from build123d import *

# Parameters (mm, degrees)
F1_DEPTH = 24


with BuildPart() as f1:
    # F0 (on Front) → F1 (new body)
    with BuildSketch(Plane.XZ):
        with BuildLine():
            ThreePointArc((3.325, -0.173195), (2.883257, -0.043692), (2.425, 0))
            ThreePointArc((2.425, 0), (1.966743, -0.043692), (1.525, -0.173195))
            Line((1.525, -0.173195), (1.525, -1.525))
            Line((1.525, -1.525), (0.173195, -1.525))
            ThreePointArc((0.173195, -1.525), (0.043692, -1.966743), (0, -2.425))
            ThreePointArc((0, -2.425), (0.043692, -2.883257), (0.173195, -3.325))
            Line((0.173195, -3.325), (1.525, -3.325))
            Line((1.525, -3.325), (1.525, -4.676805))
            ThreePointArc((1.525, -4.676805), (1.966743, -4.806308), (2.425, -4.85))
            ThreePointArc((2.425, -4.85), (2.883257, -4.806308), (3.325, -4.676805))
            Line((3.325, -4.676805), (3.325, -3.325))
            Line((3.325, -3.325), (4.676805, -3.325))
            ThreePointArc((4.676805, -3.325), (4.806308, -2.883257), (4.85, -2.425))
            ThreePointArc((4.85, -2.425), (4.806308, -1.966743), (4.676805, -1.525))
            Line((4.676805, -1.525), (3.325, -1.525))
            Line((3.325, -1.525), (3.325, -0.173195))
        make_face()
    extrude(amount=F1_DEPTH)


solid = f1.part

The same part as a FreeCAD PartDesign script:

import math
import FreeCAD as App
import Part
import Sketcher
from FreeCAD import Vector
Q = App.Units.Quantity

doc = App.newDocument("Part")
params = doc.addObject("Spreadsheet::Sheet", "Params")
for row, (alias, value) in enumerate([
    ("pad1_length", "24 mm"),
], start=1):
    params.set(f"A{row}", alias)
    params.set(f"B{row}", "=" + value)
    params.setAlias(f"B{row}", alias)

body = doc.addObject("PartDesign::Body", "Body")

# Sketch on XZ plane
sketch1 = body.newObject("Sketcher::SketchObject", "Sketch")
sketch1.AttachmentSupport = (doc.getObject("XZ_Plane"), [""])
sketch1.MapMode = "FlatFace"
sketch1.addGeometry([
    Part.ArcOfCircle(Part.Circle(Vector(2.425004, -2.424979, 0), Vector(0, 0, 1), 2.424979), math.radians(68.214342), math.radians(90.000106)),  # 0
    Part.ArcOfCircle(Part.Circle(Vector(2.424996, -2.424979, 0), Vector(0, 0, 1), 2.424979), math.radians(89.999894), math.radians(111.785658)),  # 1
    Part.LineSegment(Vector(1.525, -0.173195, 0), Vector(1.525, -1.525, 0)),  # 2
    Part.LineSegment(Vector(1.525, -1.525, 0), Vector(0.173195, -1.525, 0)),  # 3
    Part.ArcOfCircle(Part.Circle(Vector(2.424979, -2.424996, 0), Vector(0, 0, 1), 2.424979), math.radians(158.214342), math.radians(180.000106)),  # 4
    Part.ArcOfCircle(Part.Circle(Vector(2.424979, -2.425004, 0), Vector(0, 0, 1), 2.424979), math.radians(179.999894), math.radians(201.785658)),  # 5
    Part.LineSegment(Vector(0.173195, -3.325, 0), Vector(1.525, -3.325, 0)),  # 6
    Part.LineSegment(Vector(1.525, -3.325, 0), Vector(1.525, -4.676805, 0)),  # 7
    Part.ArcOfCircle(Part.Circle(Vector(2.424996, -2.425021, 0), Vector(0, 0, 1), 2.424979), math.radians(-111.785658), math.radians(-89.999894)),  # 8
    Part.ArcOfCircle(Part.Circle(Vector(2.425004, -2.425021, 0), Vector(0, 0, 1), 2.424979), math.radians(-90.000106), math.radians(-68.214342)),  # 9
    Part.LineSegment(Vector(3.325, -4.676805, 0), Vector(3.325, -3.325, 0)),  # 10
    Part.LineSegment(Vector(3.325, -3.325, 0), Vector(4.676805, -3.325, 0)),  # 11
    Part.ArcOfCircle(Part.Circle(Vector(2.425021, -2.425004, 0), Vector(0, 0, 1), 2.424979), math.radians(-21.785658), math.radians(0.000106)),  # 12
    Part.ArcOfCircle(Part.Circle(Vector(2.425021, -2.424996, 0), Vector(0, 0, 1), 2.424979), math.radians(-0.000106), math.radians(21.785658)),  # 13
    Part.LineSegment(Vector(4.676805, -1.525, 0), Vector(3.325, -1.525, 0)),  # 14
    Part.LineSegment(Vector(3.325, -1.525, 0), Vector(3.325, -0.173195, 0)),  # 15
], False)
sketch1.addConstraint([
    Sketcher.Constraint("Coincident", 0, 2, 1, 1),
    Sketcher.Constraint("Coincident", 1, 2, 2, 1),
    Sketcher.Constraint("Coincident", 2, 2, 3, 1),
    Sketcher.Constraint("Coincident", 3, 2, 4, 1),
    Sketcher.Constraint("Coincident", 4, 2, 5, 1),
    Sketcher.Constraint("Coincident", 5, 2, 6, 1),
    Sketcher.Constraint("Coincident", 6, 2, 7, 1),
    Sketcher.Constraint("Coincident", 7, 2, 8, 1),
    Sketcher.Constraint("Coincident", 8, 2, 9, 1),
    Sketcher.Constraint("Coincident", 9, 2, 10, 1),
    Sketcher.Constraint("Coincident", 10, 2, 11, 1),
    Sketcher.Constraint("Coincident", 11, 2, 12, 1),
    Sketcher.Constraint("Coincident", 12, 2, 13, 1),
    Sketcher.Constraint("Coincident", 13, 2, 14, 1),
    Sketcher.Constraint("Coincident", 14, 2, 15, 1),
    Sketcher.Constraint("Coincident", 15, 2, 0, 1),
    Sketcher.Constraint("Vertical", 2),
    Sketcher.Constraint("Horizontal", 3),
    Sketcher.Constraint("Horizontal", 6),
    Sketcher.Constraint("Vertical", 7),
    Sketcher.Constraint("Vertical", 10),
    Sketcher.Constraint("Horizontal", 11),
    Sketcher.Constraint("Horizontal", 14),
    Sketcher.Constraint("Vertical", 15),
    Sketcher.Constraint("Coincident", 1, 3, 0, 3),
    Sketcher.Constraint("Coincident", 5, 3, 4, 3),
    Sketcher.Constraint("Coincident", 9, 3, 8, 3),
    Sketcher.Constraint("Coincident", 13, 3, 12, 3),
    Sketcher.Constraint("Equal", 1, 4),
    Sketcher.Constraint("Equal", 5, 8),
    Sketcher.Constraint("Equal", 9, 12),
    Sketcher.Constraint("PointOnObject", 0, 2, -1),
    Sketcher.Constraint("PointOnObject", 4, 2, -2),
    Sketcher.Constraint("Horizontal", 5, 3, 12, 3),
    Sketcher.Constraint("Horizontal", 7, 2, 9, 2),
    Sketcher.Constraint("Horizontal", 6, 2, 10, 2),
    Sketcher.Constraint("Horizontal", 4, 2, 12, 2),
    Sketcher.Constraint("Horizontal", 3, 2, 13, 2),
    Sketcher.Constraint("Horizontal", 1, 2, 15, 2),
    Sketcher.Constraint("Vertical", 1, 3, 8, 3),
    Sketcher.Constraint("Vertical", 3, 2, 5, 2),
    Sketcher.Constraint("Vertical", 2, 2, 6, 2),
    Sketcher.Constraint("Vertical", 0, 2, 8, 2),
    Sketcher.Constraint("Equal", 6, 11),
    Sketcher.Constraint("Equal", 14, 2),
    Sketcher.Constraint("Equal", 2, 7),
    Sketcher.Constraint("DistanceX", 1, 2, 0, 2, Q("0.9 mm")),
    Sketcher.Constraint("DistanceY", 4, 2, 3, 2, Q("0.9 mm")),
    Sketcher.Constraint("DistanceY", 5, 2, 4, 2, Q("0.9 mm")),
    Sketcher.Constraint("DistanceX", 8, 2, 9, 2, Q("0.9 mm")),
    Sketcher.Constraint("DistanceY", 8, 2, -1, 1, Q("4.85 mm")),
    Sketcher.Constraint("Radius", 0, Q("2.424979 mm")),
])
pad1 = body.newObject("PartDesign::Pad", "Pad")
pad1.Profile = sketch1
pad1.setExpression("Length", "Params.pad1_length")

doc.recompute()
